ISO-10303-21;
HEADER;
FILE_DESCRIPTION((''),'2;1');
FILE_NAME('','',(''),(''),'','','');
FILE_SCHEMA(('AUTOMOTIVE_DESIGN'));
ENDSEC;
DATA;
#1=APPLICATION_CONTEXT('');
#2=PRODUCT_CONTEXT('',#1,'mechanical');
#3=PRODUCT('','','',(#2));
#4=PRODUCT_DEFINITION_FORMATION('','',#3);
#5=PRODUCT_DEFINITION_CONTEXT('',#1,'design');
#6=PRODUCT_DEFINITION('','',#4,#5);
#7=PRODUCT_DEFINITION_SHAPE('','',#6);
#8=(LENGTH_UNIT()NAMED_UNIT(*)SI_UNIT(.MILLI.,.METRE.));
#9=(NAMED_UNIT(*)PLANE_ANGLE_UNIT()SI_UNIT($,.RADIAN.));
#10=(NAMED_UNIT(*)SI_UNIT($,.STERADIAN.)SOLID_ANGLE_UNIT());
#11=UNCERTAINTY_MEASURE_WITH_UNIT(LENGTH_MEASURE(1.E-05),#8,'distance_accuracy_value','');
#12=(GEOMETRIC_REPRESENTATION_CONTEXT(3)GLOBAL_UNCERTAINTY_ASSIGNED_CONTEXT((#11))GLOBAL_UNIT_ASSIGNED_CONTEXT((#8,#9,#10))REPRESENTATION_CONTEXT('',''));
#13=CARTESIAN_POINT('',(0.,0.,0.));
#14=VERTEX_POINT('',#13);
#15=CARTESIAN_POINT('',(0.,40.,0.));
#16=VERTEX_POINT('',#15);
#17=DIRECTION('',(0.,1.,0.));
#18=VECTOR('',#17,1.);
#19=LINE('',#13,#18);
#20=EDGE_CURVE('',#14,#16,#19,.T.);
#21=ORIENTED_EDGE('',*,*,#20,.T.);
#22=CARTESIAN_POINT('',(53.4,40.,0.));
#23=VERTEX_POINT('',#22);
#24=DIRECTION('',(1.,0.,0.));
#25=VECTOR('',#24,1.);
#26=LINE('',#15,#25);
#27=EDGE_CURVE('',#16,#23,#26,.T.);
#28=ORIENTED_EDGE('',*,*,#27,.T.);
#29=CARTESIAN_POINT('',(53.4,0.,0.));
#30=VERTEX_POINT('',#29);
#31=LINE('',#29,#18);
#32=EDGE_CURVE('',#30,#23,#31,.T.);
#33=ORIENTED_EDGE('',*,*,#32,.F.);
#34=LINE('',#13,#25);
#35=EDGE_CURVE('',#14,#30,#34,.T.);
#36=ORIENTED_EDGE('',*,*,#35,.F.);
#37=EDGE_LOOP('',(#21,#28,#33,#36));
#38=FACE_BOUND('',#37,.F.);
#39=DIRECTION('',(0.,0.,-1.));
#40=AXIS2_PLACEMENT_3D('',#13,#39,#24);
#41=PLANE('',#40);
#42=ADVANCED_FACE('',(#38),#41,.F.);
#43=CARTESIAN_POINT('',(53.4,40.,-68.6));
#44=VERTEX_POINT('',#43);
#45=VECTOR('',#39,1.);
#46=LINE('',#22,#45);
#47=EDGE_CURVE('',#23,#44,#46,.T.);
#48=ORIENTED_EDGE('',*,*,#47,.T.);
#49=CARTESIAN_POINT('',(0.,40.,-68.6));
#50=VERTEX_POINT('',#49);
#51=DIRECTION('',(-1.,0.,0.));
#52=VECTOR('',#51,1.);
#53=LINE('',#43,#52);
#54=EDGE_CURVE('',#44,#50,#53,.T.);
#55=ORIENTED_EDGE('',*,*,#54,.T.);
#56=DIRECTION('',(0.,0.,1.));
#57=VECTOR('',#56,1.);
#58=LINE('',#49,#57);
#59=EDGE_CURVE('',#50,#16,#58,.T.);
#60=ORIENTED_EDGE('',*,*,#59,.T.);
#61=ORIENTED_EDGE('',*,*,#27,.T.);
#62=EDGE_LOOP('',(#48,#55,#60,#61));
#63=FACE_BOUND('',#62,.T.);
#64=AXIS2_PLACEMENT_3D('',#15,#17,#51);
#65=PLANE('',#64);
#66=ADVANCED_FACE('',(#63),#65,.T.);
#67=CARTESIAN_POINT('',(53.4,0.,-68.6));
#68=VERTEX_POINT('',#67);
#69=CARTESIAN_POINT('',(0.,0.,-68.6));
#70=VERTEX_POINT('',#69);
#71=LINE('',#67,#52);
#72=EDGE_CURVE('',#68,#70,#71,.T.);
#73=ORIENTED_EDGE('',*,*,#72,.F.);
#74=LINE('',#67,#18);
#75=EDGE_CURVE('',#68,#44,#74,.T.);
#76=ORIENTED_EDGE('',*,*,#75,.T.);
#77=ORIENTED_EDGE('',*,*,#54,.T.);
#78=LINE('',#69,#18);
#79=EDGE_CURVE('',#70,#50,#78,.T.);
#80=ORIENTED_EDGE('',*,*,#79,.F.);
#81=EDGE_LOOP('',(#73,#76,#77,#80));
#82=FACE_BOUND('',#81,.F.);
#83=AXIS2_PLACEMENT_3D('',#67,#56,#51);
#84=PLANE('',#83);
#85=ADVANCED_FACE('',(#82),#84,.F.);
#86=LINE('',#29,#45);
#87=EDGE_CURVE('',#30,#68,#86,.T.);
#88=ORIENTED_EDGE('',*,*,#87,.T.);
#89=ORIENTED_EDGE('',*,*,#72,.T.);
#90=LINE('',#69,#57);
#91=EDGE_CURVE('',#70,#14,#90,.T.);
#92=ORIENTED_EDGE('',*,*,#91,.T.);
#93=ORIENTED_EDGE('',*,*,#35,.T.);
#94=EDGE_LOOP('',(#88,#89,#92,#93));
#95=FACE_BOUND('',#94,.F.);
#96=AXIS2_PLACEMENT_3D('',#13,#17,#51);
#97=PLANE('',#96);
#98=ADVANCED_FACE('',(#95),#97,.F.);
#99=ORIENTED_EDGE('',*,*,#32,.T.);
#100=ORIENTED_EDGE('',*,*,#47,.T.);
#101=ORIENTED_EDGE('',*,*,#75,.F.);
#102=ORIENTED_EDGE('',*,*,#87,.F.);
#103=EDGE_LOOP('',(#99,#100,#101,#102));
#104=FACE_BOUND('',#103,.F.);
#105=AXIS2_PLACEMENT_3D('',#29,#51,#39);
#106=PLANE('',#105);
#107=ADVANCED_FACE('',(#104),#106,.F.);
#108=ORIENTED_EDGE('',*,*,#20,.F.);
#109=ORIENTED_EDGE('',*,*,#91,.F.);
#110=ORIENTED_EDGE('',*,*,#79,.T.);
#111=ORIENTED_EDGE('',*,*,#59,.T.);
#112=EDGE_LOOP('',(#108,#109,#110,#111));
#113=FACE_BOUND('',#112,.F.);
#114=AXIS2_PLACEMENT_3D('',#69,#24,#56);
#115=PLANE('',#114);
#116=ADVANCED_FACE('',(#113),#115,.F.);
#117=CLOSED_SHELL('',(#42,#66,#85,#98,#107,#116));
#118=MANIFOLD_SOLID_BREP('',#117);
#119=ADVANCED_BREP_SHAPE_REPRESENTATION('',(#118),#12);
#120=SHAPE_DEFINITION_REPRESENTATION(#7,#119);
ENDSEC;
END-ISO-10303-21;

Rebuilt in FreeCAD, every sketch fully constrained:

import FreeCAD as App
import Part
import Sketcher


def add_polygon(sketch, points):
    """Adds a closed chain of lines whose ends are joined by coincident constraints."""
    first, n = sketch.GeometryCount, len(points)
    for a, b in zip(points, points[1:] + points[:1]):
        sketch.addGeometry(Part.LineSegment(App.Vector(*a, 0), App.Vector(*b, 0)), False)
    for i in range(n):
        sketch.addConstraint(Sketcher.Constraint("Coincident", first + i, 2, first + (i + 1) % n, 1))

doc = App.newDocument("Part")
body = doc.addObject("PartDesign::Body", "Body")

sketch1 = body.newObject("Sketcher::SketchObject", "Sketch")
sketch1.AttachmentSupport = (doc.getObject("XZ_Plane"), [""])
sketch1.MapMode = "FlatFace"
add_polygon(sketch1, [(0, -69), (0, 0), (53, 0), (53, -69)])
sketch1.addConstraint([
    Sketcher.Constraint("Vertical", 0),
    Sketcher.Constraint("Horizontal", 1),
    Sketcher.Constraint("Vertical", 2),
    Sketcher.Constraint("Horizontal", 3),
    Sketcher.Constraint("Coincident", 0, 2, -1, 1),
    Sketcher.Constraint("DistanceX", 1, 1, 1, 2, 53.4),
    Sketcher.Constraint("DistanceY", 0, 1, 0, 2, 68.6),
])
pad1 = body.newObject("PartDesign::Pad", "Pad")
pad1.Profile = sketch1
pad1.Length = 40
pad1.Reversed = True

doc.recompute()
